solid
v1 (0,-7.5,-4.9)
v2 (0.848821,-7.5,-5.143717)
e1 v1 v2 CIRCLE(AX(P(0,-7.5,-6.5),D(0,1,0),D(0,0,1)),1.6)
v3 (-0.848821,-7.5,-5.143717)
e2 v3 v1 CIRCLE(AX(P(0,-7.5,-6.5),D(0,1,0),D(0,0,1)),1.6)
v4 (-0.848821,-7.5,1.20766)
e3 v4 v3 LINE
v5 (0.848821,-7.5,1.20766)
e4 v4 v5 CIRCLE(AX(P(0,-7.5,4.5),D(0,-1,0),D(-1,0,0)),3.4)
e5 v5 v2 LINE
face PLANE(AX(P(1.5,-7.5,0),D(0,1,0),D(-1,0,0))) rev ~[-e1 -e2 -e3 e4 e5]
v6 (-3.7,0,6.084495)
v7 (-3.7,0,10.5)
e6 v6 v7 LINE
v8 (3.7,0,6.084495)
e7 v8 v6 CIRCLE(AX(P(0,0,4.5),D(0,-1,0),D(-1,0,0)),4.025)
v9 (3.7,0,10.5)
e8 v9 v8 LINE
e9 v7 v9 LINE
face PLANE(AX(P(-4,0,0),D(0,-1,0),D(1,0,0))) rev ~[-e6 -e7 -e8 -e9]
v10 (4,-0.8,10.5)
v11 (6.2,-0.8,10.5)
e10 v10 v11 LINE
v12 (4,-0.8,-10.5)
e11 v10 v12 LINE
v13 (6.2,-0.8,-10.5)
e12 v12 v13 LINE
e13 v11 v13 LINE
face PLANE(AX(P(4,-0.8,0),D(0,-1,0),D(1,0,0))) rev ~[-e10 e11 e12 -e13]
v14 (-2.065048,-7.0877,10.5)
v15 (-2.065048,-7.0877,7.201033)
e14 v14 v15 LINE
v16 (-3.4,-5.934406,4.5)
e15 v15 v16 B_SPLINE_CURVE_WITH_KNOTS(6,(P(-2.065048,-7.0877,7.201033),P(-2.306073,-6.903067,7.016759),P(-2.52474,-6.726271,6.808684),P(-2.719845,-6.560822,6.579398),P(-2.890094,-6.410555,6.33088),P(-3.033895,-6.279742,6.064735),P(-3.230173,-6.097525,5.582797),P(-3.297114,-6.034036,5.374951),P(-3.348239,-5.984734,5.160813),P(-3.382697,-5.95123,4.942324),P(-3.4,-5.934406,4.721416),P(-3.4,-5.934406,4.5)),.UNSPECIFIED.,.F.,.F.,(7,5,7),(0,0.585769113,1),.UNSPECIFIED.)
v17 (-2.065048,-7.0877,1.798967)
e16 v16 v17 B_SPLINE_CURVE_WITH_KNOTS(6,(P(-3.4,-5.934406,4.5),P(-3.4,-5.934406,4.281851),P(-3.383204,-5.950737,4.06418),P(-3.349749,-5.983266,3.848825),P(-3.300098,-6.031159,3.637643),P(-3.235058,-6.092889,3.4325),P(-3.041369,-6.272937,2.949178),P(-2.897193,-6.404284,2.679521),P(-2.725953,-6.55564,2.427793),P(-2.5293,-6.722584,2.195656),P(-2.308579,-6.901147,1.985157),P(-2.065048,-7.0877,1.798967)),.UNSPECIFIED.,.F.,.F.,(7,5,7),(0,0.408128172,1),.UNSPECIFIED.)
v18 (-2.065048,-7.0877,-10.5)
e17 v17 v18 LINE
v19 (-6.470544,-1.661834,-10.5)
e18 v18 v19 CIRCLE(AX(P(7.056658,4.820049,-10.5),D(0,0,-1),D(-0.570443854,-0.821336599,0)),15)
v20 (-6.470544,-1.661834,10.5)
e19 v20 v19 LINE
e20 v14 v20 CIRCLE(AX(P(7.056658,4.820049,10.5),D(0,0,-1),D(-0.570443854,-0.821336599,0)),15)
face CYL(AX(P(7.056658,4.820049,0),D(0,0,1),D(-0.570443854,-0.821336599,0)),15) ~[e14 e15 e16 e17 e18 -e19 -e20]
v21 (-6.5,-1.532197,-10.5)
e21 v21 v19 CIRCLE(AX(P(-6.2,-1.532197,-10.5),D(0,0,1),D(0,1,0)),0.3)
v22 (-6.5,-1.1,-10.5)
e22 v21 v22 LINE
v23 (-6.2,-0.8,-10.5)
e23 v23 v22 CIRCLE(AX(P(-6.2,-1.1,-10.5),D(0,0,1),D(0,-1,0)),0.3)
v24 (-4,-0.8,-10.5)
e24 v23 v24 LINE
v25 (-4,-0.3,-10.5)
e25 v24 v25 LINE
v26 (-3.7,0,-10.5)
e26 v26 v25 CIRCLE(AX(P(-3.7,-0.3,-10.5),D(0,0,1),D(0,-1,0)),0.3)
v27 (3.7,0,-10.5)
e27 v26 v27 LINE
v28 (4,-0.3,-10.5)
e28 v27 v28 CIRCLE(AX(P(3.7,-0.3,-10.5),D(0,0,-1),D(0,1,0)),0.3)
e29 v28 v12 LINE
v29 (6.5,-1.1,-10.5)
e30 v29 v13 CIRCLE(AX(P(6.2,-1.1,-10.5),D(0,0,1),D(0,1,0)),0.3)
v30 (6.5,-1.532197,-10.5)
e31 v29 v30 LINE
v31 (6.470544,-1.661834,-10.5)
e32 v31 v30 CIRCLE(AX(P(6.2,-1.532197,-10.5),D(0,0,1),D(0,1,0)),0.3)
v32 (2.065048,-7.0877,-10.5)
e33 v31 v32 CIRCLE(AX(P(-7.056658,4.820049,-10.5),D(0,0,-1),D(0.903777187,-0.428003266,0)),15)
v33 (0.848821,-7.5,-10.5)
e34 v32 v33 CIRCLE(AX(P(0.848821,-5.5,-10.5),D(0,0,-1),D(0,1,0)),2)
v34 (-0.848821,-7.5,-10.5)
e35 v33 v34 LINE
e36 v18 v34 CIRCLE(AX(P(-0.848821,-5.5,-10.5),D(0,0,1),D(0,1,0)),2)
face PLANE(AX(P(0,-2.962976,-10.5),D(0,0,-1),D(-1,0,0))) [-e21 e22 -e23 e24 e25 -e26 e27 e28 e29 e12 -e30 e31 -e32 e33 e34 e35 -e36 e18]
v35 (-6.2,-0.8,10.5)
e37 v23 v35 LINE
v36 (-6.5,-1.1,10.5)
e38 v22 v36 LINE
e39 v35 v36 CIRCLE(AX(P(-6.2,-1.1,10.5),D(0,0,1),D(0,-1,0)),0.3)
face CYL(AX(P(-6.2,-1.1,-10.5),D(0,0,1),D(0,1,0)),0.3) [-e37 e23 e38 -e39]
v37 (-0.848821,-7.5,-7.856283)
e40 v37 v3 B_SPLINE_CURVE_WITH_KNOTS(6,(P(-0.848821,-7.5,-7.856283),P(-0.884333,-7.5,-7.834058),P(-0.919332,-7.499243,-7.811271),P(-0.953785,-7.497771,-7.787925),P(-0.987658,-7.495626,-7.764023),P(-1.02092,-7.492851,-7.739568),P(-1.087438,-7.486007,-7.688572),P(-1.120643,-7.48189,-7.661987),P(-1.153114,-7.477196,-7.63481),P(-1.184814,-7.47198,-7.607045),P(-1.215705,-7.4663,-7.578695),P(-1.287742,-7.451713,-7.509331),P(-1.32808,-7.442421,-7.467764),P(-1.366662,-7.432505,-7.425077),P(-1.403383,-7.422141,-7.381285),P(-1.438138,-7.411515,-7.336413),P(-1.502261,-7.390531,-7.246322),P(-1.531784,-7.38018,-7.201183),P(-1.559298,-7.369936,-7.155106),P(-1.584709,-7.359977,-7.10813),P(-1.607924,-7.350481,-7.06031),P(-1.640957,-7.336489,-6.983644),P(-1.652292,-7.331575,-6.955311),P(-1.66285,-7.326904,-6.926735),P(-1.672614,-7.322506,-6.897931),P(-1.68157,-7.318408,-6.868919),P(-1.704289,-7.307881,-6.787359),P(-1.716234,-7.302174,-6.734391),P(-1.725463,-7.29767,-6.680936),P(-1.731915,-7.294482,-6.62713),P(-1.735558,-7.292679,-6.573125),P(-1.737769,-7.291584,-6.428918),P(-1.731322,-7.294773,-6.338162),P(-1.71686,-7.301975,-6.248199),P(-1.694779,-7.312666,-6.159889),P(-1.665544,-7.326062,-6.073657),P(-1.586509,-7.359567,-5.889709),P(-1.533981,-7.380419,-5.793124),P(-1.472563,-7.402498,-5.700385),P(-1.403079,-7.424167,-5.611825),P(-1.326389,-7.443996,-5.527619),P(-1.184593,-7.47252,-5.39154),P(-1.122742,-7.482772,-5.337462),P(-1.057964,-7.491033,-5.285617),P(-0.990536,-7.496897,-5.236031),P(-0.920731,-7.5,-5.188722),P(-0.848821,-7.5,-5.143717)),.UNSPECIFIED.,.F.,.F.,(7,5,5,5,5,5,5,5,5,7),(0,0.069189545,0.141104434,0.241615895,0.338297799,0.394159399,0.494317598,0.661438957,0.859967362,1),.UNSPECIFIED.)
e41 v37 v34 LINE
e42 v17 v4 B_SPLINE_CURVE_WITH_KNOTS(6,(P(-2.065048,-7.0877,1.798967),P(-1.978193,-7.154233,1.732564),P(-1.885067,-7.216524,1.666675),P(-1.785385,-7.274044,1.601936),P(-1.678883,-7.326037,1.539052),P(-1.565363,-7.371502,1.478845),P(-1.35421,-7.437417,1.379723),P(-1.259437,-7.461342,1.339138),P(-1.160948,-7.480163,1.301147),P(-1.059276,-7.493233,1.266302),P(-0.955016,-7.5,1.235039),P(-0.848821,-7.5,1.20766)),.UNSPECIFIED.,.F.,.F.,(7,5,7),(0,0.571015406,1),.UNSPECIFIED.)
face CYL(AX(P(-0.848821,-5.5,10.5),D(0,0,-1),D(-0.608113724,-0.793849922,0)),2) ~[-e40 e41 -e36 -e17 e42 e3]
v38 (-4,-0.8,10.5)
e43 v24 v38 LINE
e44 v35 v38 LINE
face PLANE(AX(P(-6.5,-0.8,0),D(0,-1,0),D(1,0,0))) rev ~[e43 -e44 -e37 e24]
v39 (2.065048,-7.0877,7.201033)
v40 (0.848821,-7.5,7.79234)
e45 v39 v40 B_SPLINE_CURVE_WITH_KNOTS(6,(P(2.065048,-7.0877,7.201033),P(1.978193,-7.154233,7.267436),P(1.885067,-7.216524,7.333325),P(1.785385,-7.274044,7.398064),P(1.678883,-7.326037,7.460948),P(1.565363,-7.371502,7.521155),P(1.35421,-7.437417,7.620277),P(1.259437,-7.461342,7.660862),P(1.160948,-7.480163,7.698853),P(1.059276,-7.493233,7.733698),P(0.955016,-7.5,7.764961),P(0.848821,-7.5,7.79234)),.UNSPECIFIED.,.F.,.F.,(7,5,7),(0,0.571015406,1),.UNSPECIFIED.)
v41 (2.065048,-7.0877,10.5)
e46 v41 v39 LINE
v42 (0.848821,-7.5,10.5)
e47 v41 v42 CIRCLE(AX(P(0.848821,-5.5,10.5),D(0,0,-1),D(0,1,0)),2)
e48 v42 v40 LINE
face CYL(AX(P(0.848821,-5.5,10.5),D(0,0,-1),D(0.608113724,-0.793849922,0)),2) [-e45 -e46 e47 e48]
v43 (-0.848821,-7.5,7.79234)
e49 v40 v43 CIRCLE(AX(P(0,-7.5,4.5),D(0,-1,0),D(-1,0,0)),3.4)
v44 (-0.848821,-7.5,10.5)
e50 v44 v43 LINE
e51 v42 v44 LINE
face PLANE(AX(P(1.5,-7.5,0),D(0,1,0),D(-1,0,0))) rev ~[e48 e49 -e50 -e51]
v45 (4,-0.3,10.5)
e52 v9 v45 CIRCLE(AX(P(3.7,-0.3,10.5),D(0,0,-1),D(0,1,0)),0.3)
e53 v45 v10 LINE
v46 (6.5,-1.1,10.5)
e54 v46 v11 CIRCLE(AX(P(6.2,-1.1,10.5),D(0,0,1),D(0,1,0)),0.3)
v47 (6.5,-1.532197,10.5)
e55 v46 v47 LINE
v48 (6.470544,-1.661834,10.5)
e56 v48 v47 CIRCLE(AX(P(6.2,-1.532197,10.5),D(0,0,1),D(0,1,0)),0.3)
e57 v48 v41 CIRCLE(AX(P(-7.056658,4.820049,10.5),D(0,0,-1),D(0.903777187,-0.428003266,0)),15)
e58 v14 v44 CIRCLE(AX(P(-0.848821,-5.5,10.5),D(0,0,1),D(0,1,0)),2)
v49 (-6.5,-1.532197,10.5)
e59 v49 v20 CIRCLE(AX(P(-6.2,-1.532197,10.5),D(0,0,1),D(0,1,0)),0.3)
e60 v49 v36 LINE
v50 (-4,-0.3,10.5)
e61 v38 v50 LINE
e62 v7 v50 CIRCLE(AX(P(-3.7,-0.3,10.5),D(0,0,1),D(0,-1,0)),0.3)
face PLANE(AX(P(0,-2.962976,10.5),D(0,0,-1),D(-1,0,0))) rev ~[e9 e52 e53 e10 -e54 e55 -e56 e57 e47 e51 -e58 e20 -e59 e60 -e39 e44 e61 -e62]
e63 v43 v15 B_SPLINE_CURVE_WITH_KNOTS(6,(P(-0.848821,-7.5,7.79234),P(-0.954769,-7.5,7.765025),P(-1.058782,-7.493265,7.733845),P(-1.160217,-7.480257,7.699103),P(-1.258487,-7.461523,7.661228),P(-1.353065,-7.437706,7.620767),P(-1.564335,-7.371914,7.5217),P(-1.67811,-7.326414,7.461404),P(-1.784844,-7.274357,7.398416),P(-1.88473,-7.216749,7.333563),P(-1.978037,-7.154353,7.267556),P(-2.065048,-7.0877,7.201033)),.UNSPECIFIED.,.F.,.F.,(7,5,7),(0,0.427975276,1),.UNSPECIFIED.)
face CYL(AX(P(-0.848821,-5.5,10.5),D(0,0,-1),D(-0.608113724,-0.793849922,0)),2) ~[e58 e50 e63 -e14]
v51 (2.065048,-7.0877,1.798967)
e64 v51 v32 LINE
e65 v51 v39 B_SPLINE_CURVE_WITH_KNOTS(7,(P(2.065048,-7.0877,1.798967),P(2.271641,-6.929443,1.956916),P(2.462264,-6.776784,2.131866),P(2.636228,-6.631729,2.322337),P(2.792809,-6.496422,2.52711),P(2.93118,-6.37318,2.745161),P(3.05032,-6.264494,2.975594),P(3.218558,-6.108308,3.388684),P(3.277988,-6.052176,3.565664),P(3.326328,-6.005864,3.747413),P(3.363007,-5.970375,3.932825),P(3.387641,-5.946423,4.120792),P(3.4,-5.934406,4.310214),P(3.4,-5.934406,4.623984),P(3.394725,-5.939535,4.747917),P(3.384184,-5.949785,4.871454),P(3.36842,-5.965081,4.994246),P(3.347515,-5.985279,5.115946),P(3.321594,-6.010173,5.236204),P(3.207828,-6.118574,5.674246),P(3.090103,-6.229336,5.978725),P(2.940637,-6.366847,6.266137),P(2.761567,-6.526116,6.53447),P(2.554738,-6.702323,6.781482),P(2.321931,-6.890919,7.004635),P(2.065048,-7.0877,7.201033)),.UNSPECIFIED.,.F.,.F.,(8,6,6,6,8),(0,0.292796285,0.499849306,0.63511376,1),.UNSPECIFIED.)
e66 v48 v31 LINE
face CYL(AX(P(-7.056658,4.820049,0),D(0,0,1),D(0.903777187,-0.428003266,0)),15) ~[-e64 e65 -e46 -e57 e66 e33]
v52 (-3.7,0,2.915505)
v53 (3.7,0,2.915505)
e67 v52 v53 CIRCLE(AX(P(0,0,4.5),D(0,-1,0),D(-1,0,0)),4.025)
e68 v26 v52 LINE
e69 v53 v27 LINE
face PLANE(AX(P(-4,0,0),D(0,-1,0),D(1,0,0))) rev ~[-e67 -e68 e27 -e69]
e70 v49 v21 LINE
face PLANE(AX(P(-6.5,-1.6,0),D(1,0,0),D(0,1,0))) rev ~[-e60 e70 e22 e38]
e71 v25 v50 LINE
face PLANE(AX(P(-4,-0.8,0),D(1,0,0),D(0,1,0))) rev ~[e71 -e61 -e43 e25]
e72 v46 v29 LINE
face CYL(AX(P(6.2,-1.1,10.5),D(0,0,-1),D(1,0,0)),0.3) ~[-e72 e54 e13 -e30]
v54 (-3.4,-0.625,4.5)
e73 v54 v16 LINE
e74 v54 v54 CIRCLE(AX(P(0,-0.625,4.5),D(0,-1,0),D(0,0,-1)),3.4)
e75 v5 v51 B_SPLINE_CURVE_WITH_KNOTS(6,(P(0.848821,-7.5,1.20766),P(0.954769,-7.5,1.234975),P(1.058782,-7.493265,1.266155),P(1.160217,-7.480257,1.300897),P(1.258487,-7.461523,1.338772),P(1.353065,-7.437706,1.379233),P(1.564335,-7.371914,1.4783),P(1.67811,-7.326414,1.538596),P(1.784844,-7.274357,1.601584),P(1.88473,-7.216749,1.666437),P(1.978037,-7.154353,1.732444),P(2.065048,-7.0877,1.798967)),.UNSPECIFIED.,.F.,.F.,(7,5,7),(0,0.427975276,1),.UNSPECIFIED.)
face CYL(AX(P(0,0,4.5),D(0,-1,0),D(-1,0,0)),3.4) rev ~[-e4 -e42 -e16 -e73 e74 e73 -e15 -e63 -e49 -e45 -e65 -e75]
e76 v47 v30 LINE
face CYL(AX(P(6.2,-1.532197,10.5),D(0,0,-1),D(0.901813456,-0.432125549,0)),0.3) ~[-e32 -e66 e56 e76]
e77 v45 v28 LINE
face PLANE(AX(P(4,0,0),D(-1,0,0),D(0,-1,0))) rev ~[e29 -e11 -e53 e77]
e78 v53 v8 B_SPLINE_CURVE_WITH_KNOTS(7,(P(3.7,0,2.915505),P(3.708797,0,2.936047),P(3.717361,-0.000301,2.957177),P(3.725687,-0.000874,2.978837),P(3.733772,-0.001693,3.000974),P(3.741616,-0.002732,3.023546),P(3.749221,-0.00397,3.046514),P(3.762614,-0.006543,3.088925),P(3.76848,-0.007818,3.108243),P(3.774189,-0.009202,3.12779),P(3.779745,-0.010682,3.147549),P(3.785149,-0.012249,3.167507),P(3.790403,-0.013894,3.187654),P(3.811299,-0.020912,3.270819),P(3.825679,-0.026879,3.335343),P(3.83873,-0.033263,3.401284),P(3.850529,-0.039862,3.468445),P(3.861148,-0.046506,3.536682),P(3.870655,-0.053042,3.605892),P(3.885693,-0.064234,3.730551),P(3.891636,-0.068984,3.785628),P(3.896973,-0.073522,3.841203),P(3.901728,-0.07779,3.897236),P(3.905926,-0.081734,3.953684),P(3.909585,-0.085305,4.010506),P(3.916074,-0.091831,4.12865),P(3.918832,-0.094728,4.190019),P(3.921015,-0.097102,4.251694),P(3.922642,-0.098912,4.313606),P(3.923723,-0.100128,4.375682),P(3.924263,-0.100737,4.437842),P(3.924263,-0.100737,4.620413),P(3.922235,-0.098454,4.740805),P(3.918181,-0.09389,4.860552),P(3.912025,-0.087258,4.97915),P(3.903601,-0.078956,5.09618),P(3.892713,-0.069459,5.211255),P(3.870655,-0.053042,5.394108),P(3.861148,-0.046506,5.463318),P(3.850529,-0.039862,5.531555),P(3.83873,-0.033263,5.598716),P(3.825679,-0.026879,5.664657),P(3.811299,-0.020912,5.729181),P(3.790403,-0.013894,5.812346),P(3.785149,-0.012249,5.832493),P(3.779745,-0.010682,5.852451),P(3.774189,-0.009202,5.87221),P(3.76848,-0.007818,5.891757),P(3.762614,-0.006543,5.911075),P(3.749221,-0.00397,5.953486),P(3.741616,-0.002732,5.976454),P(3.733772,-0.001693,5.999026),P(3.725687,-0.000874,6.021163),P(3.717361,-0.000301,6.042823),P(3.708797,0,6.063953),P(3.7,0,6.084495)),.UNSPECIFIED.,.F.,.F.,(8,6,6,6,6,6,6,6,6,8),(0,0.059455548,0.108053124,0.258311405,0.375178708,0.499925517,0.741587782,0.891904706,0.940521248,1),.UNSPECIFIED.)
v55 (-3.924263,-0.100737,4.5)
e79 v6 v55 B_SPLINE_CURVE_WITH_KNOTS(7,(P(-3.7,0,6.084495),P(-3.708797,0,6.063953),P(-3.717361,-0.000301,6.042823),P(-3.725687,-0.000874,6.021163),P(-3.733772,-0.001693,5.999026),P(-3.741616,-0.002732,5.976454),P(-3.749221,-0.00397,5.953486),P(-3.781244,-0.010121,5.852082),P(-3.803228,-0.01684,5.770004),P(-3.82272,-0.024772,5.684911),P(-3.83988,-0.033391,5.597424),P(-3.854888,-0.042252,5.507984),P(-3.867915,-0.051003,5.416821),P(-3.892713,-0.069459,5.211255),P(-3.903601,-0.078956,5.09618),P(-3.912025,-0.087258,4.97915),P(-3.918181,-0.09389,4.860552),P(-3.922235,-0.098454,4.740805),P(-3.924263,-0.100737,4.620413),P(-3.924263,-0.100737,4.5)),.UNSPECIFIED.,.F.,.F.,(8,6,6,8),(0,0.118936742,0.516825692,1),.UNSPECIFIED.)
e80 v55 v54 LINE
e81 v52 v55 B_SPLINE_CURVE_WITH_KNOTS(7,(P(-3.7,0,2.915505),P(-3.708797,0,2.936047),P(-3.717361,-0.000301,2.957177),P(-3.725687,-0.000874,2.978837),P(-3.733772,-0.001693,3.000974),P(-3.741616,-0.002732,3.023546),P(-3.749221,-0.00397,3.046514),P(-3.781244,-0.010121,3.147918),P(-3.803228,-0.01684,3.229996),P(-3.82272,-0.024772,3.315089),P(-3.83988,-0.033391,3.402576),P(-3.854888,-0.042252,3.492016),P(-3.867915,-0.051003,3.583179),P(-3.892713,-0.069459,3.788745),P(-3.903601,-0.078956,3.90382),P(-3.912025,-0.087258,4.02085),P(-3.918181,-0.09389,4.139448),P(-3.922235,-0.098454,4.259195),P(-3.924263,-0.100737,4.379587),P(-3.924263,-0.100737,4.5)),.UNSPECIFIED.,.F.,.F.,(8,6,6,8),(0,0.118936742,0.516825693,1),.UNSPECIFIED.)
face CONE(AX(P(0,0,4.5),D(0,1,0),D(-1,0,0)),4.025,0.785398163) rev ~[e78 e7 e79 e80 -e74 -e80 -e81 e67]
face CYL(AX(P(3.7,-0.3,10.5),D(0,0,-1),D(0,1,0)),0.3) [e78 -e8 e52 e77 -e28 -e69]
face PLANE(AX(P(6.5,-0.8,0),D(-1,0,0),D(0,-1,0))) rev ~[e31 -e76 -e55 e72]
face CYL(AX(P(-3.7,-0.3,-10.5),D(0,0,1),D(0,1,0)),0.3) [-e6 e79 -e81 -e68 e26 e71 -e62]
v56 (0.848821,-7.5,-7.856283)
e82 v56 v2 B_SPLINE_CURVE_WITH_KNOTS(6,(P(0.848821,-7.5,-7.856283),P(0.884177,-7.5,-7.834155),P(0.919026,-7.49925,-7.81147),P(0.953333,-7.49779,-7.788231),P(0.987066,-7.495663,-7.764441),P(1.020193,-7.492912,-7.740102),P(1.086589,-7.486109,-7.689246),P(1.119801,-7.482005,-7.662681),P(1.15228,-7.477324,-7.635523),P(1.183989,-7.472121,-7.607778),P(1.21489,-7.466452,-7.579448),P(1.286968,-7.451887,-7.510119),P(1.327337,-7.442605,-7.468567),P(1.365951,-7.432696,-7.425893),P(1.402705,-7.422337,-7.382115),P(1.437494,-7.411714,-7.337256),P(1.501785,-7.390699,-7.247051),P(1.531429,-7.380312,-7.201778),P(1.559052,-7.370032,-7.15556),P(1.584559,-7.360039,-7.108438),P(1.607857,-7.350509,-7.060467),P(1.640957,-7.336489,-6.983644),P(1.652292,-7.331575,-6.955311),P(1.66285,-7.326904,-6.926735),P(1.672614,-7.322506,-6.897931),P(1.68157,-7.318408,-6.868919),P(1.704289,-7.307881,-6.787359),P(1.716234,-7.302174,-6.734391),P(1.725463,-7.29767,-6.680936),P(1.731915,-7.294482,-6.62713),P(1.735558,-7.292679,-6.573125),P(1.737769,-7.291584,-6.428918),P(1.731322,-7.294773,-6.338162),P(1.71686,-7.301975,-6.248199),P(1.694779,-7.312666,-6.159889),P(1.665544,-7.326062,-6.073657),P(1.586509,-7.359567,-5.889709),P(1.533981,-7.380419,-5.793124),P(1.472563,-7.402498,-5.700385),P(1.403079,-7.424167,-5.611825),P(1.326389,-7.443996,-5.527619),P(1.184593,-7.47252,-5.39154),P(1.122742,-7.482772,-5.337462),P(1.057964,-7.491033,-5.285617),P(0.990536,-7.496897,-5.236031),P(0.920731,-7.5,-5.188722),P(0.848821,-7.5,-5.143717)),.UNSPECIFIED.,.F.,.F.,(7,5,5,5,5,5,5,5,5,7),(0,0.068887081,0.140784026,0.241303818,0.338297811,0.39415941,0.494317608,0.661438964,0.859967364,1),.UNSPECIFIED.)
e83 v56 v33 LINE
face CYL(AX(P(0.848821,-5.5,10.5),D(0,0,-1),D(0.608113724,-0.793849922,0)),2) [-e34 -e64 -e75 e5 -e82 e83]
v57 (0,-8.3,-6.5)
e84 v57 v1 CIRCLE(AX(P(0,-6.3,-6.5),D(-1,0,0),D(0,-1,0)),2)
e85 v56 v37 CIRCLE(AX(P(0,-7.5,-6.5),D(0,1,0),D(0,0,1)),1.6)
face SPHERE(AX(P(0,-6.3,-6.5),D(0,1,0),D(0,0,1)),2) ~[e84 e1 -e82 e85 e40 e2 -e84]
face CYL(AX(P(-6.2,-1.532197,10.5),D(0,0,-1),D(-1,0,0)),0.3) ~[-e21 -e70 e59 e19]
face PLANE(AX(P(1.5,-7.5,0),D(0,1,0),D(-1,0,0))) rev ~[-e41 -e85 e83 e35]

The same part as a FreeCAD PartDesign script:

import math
import FreeCAD as App
import Part
import Sketcher
from FreeCAD import Vector


def edges_at(feature, points):
    """Names of the edges that pass closest to the given points."""
    edges = feature.Shape.Edges
    near = lambda p: min(range(len(edges)), key=lambda i: edges[i].distToShape(Part.Vertex(*p))[0])
    return sorted({f"Edge{near(p) + 1}" for p in points})

doc = App.newDocument("Part")
body = doc.addObject("PartDesign::Body", "Body")

# Sketch on XY plane
sketch1 = doc.addObject("Sketcher::SketchObject", "Sketch")
body.addObject(sketch1)
sketch1.AttachmentSupport = (doc.XY_Plane, [""])
sketch1.MapMode = "FlatFace"
sketch1.addGeometry([
    Part.LineSegment(Vector(4, 0, 0), Vector(-4, 0, 0)),  # 0
    Part.LineSegment(Vector(-4, 0, 0), Vector(-4, -0.8, 0)),  # 1
    Part.LineSegment(Vector(-4, -0.8, 0), Vector(-6.5, -0.8, 0)),  # 2
    Part.LineSegment(Vector(-6.5, -0.8, 0), Vector(-6.5, -1.6, 0)),  # 3
    Part.ArcOfCircle(Part.Circle(Vector(7.1, 4.8, 0), Vector(0, 0, 1), 15), math.radians(-155), math.radians(-125)),  # 4
    Part.LineSegment(Vector(-1.5, -7.5, 0), Vector(1.5, -7.5, 0)),  # 5
    Part.ArcOfCircle(Part.Circle(Vector(-7.1, 4.8, 0), Vector(0, 0, 1), 15), math.radians(-55), math.radians(-25)),  # 6
    Part.LineSegment(Vector(6.5, -1.6, 0), Vector(6.5, -0.8, 0)),  # 7
    Part.LineSegment(Vector(6.5, -0.8, 0), Vector(4, -0.8, 0)),  # 8
    Part.LineSegment(Vector(4, -0.8, 0), Vector(4, 0, 0)),  # 9
], False)
sketch1.addConstraint([
    Sketcher.Constraint("Coincident", 0, 2, 1, 1),
    Sketcher.Constraint("Coincident", 1, 2, 2, 1),
    Sketcher.Constraint("Coincident", 2, 2, 3, 1),
    Sketcher.Constraint("Coincident", 3, 2, 4, 1),
    Sketcher.Constraint("Coincident", 4, 2, 5, 1),
    Sketcher.Constraint("Coincident", 5, 2, 6, 1),
    Sketcher.Constraint("Coincident", 6, 2, 7, 1),
    Sketcher.Constraint("Coincident", 7, 2, 8, 1),
    Sketcher.Constraint("Coincident", 8, 2, 9, 1),
    Sketcher.Constraint("Coincident", 9, 2, 0, 1),
    Sketcher.Constraint("Horizontal", 0),
    Sketcher.Constraint("Vertical", 1),
    Sketcher.Constraint("Horizontal", 2),
    Sketcher.Constraint("Vertical", 3),
    Sketcher.Constraint("Horizontal", 5),
    Sketcher.Constraint("Vertical", 7),
    Sketcher.Constraint("Horizontal", 8),
    Sketcher.Constraint("Vertical", 9),
    Sketcher.Constraint("Equal", 4, 6),
    Sketcher.Constraint("Symmetric", 0, 2, 9, 2, -1, 1),
    Sketcher.Constraint("Symmetric", 4, 3, 6, 3, -2),
    Sketcher.Constraint("Symmetric", 2, 2, 7, 2, -2),
    Sketcher.Constraint("Equal", 1, 3),
    Sketcher.Constraint("Radius", 4, 15.0),
    Sketcher.Constraint("DistanceX", 0, 2, 0, 1, 8.0),
    Sketcher.Constraint("DistanceX", 5, 1, 5, 2, 3.0),
    Sketcher.Constraint("DistanceX", 2, 2, 2, 1, 2.5),
    Sketcher.Constraint("DistanceY", 1, 2, 1, 1, 0.8),
    Sketcher.Constraint("DistanceY", 4, 2, -1, 1, 7.5),
])
pad1 = doc.addObject("PartDesign::Pad", "Pad")
body.addObject(pad1)
pad1.Profile = sketch1
pad1.Length = 21
pad1.Midplane = True
doc.recompute()

fillet = doc.addObject("PartDesign::Fillet", "Fillet")
body.addObject(fillet)
fillet.Base = (pad1, edges_at(pad1, [
    (6.5, -0.8, 0),
    (6.5, -1.6, 0),
    (-6.5, -1.6, 0),
    (-6.5, -0.8, 0),
    (-4, 0, 0),
    (4, 0, 0),
]))
fillet.Radius = 0.3
doc.recompute()

fillet2 = doc.addObject("PartDesign::Fillet", "Fillet001")
body.addObject(fillet2)
fillet2.Base = (fillet, edges_at(fillet, [(1.5, -7.5, 0), (-1.5, -7.5, 0)]))
fillet2.Radius = 2

# Sketch on XZ plane
sketch2 = doc.addObject("Sketcher::SketchObject", "Sketch001")
body.addObject(sketch2)
sketch2.AttachmentSupport = (doc.XZ_Plane, [""])
sketch2.MapMode = "FlatFace"
sketch2.addGeometry(Part.Circle(Vector(0, 4.5, 0), Vector(0, 0, 1), 3.4), False)
sketch2.addConstraint([
    Sketcher.Constraint("PointOnObject", 0, 3, -2),
    Sketcher.Constraint("Diameter", 0, 6.8),
    Sketcher.Constraint("DistanceY", -1, 1, 0, 3, 4.5),
])
doc.recompute()
hole = doc.addObject("PartDesign::Hole", "Hole")
body.addObject(hole)
hole.Profile = sketch2
hole.ThreadType = "None"
hole.Diameter = 6.8
hole.DepthType = "ThroughAll"
hole.HoleCutType = "Countersink"
hole.HoleCutDiameter = 8.05
hole.HoleCutCountersinkAngle = 90
hole.Reversed = True

# Sketch on YZ plane
sketch3 = doc.addObject("Sketcher::SketchObject", "Sketch002")
body.addObject(sketch3)
sketch3.AttachmentSupport = (doc.YZ_Plane, [""])
sketch3.MapMode = "FlatFace"
sketch3.addGeometry([
    Part.LineSegment(Vector(-8.3, -6.5, 0), Vector(-4.3, -6.5, 0)),
    Part.ArcOfCircle(Part.Circle(Vector(-6.3, -6.5, 0), Vector(0, 0, 1), 2), math.radians(0), math.radians(180)),
], False)
sketch3.addGeometry(Part.LineSegment(Vector(-4.3, -6.5, 0), Vector(-8.3, -6.5, 0)), True)  # axis
sketch3.addConstraint([
    Sketcher.Constraint("Coincident", 0, 1, 1, 2),
    Sketcher.Constraint("Coincident", 1, 1, 0, 2),
    Sketcher.Constraint("Horizontal", 0),
    Sketcher.Constraint("Horizontal", 2),
    Sketcher.Constraint("Coincident", 2, 1, 1, 1),
    Sketcher.Constraint("Horizontal", 1, 3, 0, 1),
    Sketcher.Constraint("Equal", 0, 2),
    Sketcher.Constraint("Radius", 1, 2.0),
    Sketcher.Constraint("DistanceX", 1, 3, -1, 1, 6.3),
    Sketcher.Constraint("DistanceY", 1, 3, -1, 1, 6.5),
])
revolution = doc.addObject("PartDesign::Revolution", "Revolution")
body.addObject(revolution)
revolution.Profile = sketch3
revolution.ReferenceAxis = (sketch3, ["Axis0"])
revolution.Angle = 360

doc.recompute()
